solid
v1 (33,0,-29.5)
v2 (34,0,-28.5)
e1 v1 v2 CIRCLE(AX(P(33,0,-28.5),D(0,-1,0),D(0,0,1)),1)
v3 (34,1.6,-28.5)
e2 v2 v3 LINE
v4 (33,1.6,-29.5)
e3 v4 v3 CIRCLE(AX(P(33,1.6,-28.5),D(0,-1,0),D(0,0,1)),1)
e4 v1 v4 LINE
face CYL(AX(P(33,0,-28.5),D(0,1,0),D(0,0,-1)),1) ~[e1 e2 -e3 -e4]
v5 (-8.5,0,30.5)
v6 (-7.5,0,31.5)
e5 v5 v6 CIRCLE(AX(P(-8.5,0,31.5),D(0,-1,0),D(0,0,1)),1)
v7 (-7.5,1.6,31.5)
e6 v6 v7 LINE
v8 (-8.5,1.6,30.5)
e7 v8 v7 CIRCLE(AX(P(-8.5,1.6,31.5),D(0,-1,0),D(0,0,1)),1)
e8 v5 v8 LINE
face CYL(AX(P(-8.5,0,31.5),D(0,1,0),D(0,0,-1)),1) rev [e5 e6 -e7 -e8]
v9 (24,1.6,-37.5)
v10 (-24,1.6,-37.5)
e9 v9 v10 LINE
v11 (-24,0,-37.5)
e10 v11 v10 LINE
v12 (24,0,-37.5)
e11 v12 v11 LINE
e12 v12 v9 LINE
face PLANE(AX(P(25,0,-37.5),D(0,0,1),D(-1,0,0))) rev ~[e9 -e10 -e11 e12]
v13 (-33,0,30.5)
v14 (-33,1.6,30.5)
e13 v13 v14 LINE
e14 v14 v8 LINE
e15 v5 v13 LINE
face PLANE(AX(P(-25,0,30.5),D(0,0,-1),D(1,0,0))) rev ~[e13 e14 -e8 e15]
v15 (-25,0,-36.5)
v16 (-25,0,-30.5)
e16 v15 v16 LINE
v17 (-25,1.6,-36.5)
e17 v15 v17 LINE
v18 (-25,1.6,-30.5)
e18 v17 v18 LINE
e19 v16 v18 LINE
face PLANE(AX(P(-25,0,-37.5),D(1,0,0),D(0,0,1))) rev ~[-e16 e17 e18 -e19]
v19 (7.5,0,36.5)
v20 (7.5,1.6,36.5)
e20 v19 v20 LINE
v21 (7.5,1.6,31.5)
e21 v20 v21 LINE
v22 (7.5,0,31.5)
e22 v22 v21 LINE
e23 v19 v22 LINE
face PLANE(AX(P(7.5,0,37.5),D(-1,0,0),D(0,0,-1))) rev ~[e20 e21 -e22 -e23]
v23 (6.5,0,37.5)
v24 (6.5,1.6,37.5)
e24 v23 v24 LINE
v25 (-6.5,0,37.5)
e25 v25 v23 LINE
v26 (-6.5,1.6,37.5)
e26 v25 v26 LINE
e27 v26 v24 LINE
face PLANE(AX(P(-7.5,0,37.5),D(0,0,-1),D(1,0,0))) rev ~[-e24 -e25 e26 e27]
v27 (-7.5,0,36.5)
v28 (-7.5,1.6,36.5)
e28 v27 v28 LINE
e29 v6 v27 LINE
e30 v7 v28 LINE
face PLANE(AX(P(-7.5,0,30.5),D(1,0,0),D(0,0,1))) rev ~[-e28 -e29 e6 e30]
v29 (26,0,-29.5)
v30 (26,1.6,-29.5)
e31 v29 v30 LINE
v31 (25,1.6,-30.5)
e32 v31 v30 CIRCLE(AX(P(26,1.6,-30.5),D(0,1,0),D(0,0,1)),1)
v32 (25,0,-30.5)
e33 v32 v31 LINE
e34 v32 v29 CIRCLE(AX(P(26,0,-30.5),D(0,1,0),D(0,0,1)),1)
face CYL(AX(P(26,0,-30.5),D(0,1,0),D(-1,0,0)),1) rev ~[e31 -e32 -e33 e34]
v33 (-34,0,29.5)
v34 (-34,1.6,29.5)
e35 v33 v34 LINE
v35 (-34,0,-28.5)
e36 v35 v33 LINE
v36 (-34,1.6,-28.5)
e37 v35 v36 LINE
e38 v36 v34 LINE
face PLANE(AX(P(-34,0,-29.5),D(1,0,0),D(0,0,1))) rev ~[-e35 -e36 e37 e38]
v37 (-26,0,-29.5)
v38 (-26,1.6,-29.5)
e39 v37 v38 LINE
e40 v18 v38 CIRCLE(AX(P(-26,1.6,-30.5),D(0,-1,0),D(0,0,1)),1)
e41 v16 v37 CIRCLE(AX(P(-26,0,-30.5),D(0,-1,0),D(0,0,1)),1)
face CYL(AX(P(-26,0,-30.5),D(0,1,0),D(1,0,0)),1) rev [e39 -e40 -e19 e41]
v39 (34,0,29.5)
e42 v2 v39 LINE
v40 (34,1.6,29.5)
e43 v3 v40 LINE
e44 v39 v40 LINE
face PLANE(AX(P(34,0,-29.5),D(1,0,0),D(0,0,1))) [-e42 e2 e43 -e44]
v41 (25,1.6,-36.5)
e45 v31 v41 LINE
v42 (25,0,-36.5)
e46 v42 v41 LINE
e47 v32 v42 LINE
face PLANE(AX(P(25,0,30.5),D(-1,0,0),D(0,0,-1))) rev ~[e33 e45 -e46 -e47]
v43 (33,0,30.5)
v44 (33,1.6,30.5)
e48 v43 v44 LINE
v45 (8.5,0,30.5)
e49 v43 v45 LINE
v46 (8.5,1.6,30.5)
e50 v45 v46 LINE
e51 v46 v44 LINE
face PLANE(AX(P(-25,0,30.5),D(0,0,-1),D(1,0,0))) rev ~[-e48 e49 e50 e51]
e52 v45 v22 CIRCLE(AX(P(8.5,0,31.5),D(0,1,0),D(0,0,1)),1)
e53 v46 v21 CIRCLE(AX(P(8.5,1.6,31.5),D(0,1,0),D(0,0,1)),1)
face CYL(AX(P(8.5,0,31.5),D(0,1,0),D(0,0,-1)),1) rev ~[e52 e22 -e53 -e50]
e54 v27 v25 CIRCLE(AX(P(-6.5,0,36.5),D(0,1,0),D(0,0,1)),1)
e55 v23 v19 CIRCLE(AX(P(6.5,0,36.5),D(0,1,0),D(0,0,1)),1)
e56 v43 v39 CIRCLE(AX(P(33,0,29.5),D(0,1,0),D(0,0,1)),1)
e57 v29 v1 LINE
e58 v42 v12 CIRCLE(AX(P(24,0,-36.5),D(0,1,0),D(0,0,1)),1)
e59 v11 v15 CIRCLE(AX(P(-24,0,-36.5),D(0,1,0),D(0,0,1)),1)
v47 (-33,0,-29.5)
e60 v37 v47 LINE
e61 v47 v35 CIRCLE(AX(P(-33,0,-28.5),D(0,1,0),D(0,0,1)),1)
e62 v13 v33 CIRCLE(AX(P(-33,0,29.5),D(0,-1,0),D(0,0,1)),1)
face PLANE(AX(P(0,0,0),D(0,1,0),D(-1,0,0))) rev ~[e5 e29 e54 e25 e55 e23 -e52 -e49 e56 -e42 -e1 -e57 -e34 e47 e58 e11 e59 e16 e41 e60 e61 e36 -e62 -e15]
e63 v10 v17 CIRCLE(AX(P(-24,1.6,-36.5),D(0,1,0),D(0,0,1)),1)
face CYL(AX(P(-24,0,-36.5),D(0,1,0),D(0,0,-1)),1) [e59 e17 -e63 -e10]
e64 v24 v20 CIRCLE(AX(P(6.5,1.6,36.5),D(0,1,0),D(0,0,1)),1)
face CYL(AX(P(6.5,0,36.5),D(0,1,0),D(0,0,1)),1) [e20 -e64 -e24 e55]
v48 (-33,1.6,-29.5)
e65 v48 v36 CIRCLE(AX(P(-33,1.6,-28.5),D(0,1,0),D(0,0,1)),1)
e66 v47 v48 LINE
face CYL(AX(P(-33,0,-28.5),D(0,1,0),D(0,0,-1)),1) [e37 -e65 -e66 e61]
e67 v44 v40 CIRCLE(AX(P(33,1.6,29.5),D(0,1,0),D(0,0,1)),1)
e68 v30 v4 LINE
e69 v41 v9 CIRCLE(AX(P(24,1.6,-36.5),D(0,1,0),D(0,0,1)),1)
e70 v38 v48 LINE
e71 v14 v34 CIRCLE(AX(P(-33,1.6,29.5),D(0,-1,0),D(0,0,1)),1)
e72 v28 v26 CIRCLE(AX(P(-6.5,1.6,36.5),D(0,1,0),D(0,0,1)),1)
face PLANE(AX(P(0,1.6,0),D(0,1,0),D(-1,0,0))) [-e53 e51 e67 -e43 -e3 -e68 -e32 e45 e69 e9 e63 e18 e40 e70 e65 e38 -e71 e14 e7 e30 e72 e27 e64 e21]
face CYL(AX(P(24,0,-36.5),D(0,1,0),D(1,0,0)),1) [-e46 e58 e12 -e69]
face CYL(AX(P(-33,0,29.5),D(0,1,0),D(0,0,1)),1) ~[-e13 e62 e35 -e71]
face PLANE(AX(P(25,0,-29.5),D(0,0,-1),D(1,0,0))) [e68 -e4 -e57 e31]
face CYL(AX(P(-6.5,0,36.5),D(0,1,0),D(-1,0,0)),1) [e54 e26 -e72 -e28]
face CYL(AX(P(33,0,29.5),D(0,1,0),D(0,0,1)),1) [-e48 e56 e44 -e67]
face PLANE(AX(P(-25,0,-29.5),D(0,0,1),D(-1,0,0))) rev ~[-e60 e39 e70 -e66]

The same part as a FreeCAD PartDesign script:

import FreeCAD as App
import Part
import Sketcher

V = App.Vector


def edges_at(feature, points):
    """Names of the edges that pass closest to the given points."""
    edges = feature.Shape.Edges
    near = lambda p: min(range(len(edges)), key=lambda i: edges[i].distToShape(Part.Vertex(*p))[0])
    return sorted({f"Edge{near(p) + 1}" for p in points})

doc = App.newDocument("Part")
body = doc.addObject("PartDesign::Body", "Body")

# Sketch on XZ plane
sketch1 = body.newObject("Sketcher::SketchObject", "Sketch")
sketch1.AttachmentSupport = (doc.getObject("XZ_Plane"), [""])
sketch1.MapMode = "FlatFace"
sketch1.addGeometry([
    Part.LineSegment(V(25, 30, 0), V(25, -38, 0)),
    Part.LineSegment(V(25, -38, 0), V(-25, -38, 0)),
    Part.LineSegment(V(-25, -38, 0), V(-25, 30, 0)),
    Part.LineSegment(V(-25, 30, 0), V(25, 30, 0)),
], False)
sketch1.addConstraint([
    Sketcher.Constraint("Coincident", 0, 2, 1, 1),
    Sketcher.Constraint("Coincident", 1, 2, 2, 1),
    Sketcher.Constraint("Coincident", 2, 2, 3, 1),
    Sketcher.Constraint("Coincident", 3, 2, 0, 1),
    Sketcher.Constraint("Vertical", 0),
    Sketcher.Constraint("Horizontal", 1),
    Sketcher.Constraint("Vertical", 2),
    Sketcher.Constraint("Horizontal", 3),
    Sketcher.Constraint("DistanceX", 1, 2, 1, 1, 50.0),
    Sketcher.Constraint("DistanceY", 0, 2, 0, 1, 68.0),
    Sketcher.Constraint("DistanceX", -1, 1, 0, 2, 25.0),
    Sketcher.Constraint("DistanceY", 0, 2, -1, 1, 37.5),
])
pad1 = body.newObject("PartDesign::Pad", "Pad")
pad1.Profile = sketch1
pad1.Length = 1.6
pad1.Reversed = True

# Sketch on XZ plane
sketch2 = body.newObject("Sketcher::SketchObject", "Sketch001")
sketch2.AttachmentSupport = (doc.getObject("XZ_Plane"), [""])
sketch2.MapMode = "FlatFace"
sketch2.addGeometry([
    Part.LineSegment(V(34, 30, 0), V(25, 30, 0)),  # 0
    Part.LineSegment(V(25, 30, 0), V(25, -30, 0)),  # 1
    Part.LineSegment(V(25, -30, 0), V(34, -30, 0)),  # 2
    Part.LineSegment(V(34, -30, 0), V(34, 30, 0)),  # 3
    Part.LineSegment(V(-8, 30, 0), V(8, 30, 0)),  # 4
    Part.LineSegment(V(8, 30, 0), V(8, 38, 0)),  # 5
    Part.LineSegment(V(8, 38, 0), V(-8, 38, 0)),  # 6
    Part.LineSegment(V(-8, 38, 0), V(-8, 30, 0)),  # 7
    Part.LineSegment(V(-25, -30, 0), V(-25, 30, 0)),  # 8
    Part.LineSegment(V(-25, 30, 0), V(-34, 30, 0)),  # 9
    Part.LineSegment(V(-34, 30, 0), V(-34, -30, 0)),  # 10
    Part.LineSegment(V(-34, -30, 0), V(-25, -30, 0)),  # 11
], False)
sketch2.addConstraint([
    Sketcher.Constraint("Coincident", 0, 2, 1, 1),
    Sketcher.Constraint("Coincident", 1, 2, 2, 1),
    Sketcher.Constraint("Coincident", 2, 2, 3, 1),
    Sketcher.Constraint("Coincident", 3, 2, 0, 1),
    Sketcher.Constraint("Coincident", 4, 2, 5, 1),
    Sketcher.Constraint("Coincident", 5, 2, 6, 1),
    Sketcher.Constraint("Coincident", 6, 2, 7, 1),
    Sketcher.Constraint("Coincident", 7, 2, 4, 1),
    Sketcher.Constraint("Coincident", 8, 2, 9, 1),
    Sketcher.Constraint("Coincident", 9, 2, 10, 1),
    Sketcher.Constraint("Coincident", 10, 2, 11, 1),
    Sketcher.Constraint("Coincident", 11, 2, 8, 1),
    Sketcher.Constraint("Horizontal", 0),
    Sketcher.Constraint("Vertical", 1),
    Sketcher.Constraint("Horizontal", 2),
    Sketcher.Constraint("Vertical", 3),
    Sketcher.Constraint("Horizontal", 4),
    Sketcher.Constraint("Vertical", 5),
    Sketcher.Constraint("Horizontal", 6),
    Sketcher.Constraint("Vertical", 7),
    Sketcher.Constraint("Vertical", 8),
    Sketcher.Constraint("Horizontal", 9),
    Sketcher.Constraint("Vertical", 10),
    Sketcher.Constraint("Horizontal", 11),
    Sketcher.Constraint("Symmetric", 0, 2, 8, 2, -2),
    Sketcher.Constraint("Symmetric", 2, 2, 10, 2, -2),
    Sketcher.Constraint("Horizontal", 3, 2, 4, 2),
    Sketcher.Constraint("DistanceX", 0, 2, 0, 1, 9.0),
    Sketcher.Constraint("DistanceX", 4, 1, 4, 2, 15.0),
    Sketcher.Constraint("DistanceY", 5, 1, 5, 2, 7.0),
    Sketcher.Constraint("DistanceY", 1, 2, 1, 1, 60.0),
    Sketcher.Constraint("DistanceX", -1, 1, 0, 2, 25.0),
    Sketcher.Constraint("DistanceY", -1, 1, 0, 2, 30.5),
    Sketcher.Constraint("DistanceX", -1, 1, 4, 2, 7.5),
])
pad2 = body.newObject("PartDesign::Pad", "Pad001")
pad2.Profile = sketch2
pad2.Length = 1.6
pad2.Reversed = True
doc.recompute()

fillet = body.newObject("PartDesign::Fillet", "Fillet")
fillet.Base = (pad2, edges_at(pad2, [
    (-34, 0.8, 30.5),
    (-25, 0.8, -29.5),
    (-34, 0.8, -29.5),
    (25, 0.8, -29.5),
    (34, 0.8, -29.5),
    (34, 0.8, 30.5),
    (25, 0.8, -37.5),
    (-25, 0.8, -37.5),
    (7.5, 0.8, 30.5),
    (7.5, 0.8, 37.5),
    (-7.5, 0.8, 37.5),
    (-7.5, 0.8, 30.5),
]))
fillet.Radius = 1

doc.recompute()
